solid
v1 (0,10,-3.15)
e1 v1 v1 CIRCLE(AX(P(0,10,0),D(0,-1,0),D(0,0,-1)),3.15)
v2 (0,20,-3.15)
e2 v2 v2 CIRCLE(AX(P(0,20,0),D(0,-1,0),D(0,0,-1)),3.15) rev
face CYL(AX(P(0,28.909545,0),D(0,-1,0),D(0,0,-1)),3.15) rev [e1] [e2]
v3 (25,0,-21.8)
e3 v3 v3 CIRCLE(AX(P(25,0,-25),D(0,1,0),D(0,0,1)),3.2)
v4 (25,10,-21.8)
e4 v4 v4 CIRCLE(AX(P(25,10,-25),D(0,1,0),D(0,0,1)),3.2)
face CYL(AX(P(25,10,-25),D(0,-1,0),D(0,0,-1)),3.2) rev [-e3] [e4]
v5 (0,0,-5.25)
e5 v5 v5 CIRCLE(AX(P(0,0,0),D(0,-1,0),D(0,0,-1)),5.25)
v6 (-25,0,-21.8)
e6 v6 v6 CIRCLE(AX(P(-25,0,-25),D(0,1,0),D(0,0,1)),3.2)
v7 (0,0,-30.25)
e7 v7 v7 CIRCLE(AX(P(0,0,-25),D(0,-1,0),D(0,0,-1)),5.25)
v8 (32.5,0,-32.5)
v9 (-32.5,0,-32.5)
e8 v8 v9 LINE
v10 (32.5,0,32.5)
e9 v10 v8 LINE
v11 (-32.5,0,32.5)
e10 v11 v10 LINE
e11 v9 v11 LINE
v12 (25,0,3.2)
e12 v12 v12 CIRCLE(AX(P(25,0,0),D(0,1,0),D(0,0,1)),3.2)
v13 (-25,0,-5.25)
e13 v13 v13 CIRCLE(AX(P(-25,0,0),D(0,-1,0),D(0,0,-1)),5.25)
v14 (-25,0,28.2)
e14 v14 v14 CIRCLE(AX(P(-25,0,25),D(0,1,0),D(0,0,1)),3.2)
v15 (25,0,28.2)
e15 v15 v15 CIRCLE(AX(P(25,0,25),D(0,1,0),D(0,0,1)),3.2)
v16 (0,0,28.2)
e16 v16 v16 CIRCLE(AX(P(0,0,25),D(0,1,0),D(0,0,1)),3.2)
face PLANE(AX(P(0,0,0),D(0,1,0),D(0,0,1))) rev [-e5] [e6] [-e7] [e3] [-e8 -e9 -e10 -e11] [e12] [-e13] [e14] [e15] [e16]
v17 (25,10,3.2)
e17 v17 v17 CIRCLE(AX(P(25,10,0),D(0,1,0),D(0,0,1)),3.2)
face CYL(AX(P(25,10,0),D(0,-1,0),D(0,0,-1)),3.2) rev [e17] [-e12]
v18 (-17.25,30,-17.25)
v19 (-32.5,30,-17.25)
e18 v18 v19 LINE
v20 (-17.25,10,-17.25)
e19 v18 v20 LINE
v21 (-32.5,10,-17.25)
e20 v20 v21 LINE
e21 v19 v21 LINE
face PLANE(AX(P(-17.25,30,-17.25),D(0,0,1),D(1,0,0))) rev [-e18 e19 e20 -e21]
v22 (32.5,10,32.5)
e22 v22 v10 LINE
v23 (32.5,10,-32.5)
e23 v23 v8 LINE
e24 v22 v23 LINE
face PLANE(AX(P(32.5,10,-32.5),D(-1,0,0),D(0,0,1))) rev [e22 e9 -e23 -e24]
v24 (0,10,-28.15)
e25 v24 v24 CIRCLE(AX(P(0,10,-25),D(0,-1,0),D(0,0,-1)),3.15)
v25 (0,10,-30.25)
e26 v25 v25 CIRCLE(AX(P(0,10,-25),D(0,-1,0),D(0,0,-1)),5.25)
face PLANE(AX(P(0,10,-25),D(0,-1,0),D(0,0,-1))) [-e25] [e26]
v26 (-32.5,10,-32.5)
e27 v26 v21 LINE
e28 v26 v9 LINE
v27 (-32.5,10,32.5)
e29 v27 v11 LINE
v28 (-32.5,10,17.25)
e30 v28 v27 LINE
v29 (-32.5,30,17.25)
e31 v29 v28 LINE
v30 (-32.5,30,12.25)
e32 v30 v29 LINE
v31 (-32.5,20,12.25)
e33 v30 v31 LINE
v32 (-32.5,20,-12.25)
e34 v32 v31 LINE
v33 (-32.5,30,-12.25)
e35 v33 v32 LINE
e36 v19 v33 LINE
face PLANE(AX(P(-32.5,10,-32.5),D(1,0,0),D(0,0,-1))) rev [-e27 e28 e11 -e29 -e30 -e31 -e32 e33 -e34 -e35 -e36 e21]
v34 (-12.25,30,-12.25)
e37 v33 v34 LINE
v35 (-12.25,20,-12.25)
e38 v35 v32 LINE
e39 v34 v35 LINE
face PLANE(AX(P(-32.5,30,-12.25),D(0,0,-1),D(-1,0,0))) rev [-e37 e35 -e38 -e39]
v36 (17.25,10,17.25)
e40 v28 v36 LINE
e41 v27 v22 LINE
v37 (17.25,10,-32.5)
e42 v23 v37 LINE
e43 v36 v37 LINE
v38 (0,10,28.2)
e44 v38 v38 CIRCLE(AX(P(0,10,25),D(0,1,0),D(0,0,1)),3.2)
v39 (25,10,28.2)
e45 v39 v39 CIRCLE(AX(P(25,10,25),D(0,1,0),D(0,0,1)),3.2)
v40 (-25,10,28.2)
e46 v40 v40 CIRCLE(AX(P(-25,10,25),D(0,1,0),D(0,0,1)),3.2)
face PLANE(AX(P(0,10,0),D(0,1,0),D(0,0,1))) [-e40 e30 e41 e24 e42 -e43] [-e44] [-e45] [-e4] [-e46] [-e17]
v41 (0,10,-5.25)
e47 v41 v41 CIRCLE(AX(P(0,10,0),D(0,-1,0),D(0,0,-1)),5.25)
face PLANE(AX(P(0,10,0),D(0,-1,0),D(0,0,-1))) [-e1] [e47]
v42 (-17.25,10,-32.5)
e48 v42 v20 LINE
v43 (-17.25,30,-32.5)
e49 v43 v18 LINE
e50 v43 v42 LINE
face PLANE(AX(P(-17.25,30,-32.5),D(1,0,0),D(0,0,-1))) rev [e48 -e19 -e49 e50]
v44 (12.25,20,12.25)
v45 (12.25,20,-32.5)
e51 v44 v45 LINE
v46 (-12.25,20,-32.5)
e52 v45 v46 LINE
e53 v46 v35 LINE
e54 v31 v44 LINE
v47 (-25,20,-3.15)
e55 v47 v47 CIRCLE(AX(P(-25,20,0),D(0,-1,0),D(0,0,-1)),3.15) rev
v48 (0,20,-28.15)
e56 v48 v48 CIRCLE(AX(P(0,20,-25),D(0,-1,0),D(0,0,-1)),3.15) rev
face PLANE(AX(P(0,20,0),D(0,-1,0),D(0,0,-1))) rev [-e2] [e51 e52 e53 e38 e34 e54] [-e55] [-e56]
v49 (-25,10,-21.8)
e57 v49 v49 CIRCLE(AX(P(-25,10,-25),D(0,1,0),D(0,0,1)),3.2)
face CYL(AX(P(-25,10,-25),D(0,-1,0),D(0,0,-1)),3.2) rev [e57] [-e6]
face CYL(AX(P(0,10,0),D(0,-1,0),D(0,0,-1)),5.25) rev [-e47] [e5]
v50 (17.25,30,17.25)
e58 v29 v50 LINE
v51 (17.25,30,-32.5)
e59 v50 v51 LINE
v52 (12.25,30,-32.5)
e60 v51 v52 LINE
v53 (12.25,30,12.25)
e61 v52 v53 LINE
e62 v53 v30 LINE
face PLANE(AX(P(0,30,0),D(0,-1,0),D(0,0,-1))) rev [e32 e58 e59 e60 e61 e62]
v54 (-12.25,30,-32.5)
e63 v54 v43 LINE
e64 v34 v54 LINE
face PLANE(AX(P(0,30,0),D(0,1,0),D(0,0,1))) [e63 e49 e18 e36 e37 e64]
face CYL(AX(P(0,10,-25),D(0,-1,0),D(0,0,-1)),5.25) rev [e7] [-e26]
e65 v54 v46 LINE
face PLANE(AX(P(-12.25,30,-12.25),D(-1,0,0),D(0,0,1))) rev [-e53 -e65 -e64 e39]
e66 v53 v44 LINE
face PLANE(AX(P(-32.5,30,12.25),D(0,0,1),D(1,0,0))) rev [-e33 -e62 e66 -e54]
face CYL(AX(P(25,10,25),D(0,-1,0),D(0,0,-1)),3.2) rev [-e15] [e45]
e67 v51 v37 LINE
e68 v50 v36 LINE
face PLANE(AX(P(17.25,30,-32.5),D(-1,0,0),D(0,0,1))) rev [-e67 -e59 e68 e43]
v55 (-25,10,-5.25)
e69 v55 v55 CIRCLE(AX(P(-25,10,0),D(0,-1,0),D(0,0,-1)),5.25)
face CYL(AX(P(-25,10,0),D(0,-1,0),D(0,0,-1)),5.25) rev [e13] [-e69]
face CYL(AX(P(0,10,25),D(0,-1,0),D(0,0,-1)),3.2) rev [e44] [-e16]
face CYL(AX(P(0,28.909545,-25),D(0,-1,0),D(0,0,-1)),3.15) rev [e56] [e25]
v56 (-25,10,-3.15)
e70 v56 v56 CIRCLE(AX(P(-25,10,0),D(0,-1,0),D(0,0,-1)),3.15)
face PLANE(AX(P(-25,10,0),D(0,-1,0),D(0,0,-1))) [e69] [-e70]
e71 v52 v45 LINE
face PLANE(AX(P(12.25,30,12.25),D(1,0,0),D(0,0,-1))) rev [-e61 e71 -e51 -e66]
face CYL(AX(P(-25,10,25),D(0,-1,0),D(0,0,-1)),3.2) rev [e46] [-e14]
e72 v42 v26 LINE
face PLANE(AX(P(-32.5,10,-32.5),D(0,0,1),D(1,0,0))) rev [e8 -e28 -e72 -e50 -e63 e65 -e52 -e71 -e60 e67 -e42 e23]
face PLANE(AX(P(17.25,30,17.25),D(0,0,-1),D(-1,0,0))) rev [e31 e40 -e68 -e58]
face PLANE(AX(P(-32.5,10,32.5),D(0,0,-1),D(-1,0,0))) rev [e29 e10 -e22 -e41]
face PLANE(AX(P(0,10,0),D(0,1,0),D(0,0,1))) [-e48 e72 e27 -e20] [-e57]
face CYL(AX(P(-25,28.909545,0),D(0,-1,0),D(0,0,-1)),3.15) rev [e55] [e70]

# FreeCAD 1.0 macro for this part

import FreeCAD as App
import Part
import Sketcher


def add_polygon(sketch, points):
    """Adds a closed chain of lines whose ends are joined by coincident constraints."""
    first, n = sketch.GeometryCount, len(points)
    for a, b in zip(points, points[1:] + points[:1]):
        sketch.addGeometry(Part.LineSegment(App.Vector(*a, 0), App.Vector(*b, 0)), False)
    for i in range(n):
        sketch.addConstraint(Sketcher.Constraint("Coincident", first + i, 2, first + (i + 1) % n, 1))

doc = App.newDocument("Part")
body = doc.addObject("PartDesign::Body", "Body")

# Sketch on XZ plane
sketch1 = body.newObject("Sketcher::SketchObject", "Sketch")
sketch1.AttachmentSupport = (doc.getObject("XZ_Plane"), [""])
sketch1.MapMode = "FlatFace"
add_polygon(sketch1, [(-32.5, -32.5), (-32.5, 32.5), (32.5, 32.5), (32.5, -32.5)])  # lines 0-3
sketch1.addGeometry(Part.Circle(App.Vector(-25, 25, 0), App.Vector(0, 0, 1), 3.2), False)  # 4
sketch1.addGeometry(Part.Circle(App.Vector(0, 25, 0), App.Vector(0, 0, 1), 3.2), False)  # 5
sketch1.addGeometry(Part.Circle(App.Vector(25, 25, 0), App.Vector(0, 0, 1), 3.2), False)  # 6
sketch1.addGeometry(Part.Circle(App.Vector(-25, -25, 0), App.Vector(0, 0, 1), 3.2), False)  # 7
sketch1.addGeometry(Part.Circle(App.Vector(25, 0, 0), App.Vector(0, 0, 1), 3.2), False)  # 8
sketch1.addGeometry(Part.Circle(App.Vector(25, -25, 0), App.Vector(0, 0, 1), 3.2), False)  # 9
sketch1.addConstraint([
    Sketcher.Constraint("Vertical", 0),
    Sketcher.Constraint("Horizontal", 1),
    Sketcher.Constraint("Vertical", 2),
    Sketcher.Constraint("Horizontal", 3),
    Sketcher.Constraint("Equal", 4, 5),
    Sketcher.Constraint("Equal", 5, 6),
    Sketcher.Constraint("Equal", 6, 7),
    Sketcher.Constraint("Equal", 7, 8),
    Sketcher.Constraint("Equal", 8, 9),
    Sketcher.Constraint("Symmetric", 6, 3, 7, 3, -1, 1),
    Sketcher.Constraint("Symmetric", 4, 3, 9, 3, -1, 1),
    Sketcher.Constraint("Symmetric", 0, 2, 2, 2, -1, 1),
    Sketcher.Constraint("Symmetric", 4, 3, 6, 3, -2),
    Sketcher.Constraint("PointOnObject", 5, 3, -2),
    Sketcher.Constraint("PointOnObject", 8, 3, -1),
    Sketcher.Constraint("Horizontal", 4, 3, 5, 3),
    Sketcher.Constraint("Vertical", 6, 3, 8, 3),
    Sketcher.Constraint("Equal", 3, 0),
    Sketcher.Constraint("Diameter", 4, 6.4),
    Sketcher.Constraint("DistanceX", 1, 1, 1, 2, 65.0),
    Sketcher.Constraint("DistanceX", 4, 3, -1, 1, 25.0),
    Sketcher.Constraint("DistanceY", -1, 1, 4, 3, 25.0),
])
pad1 = body.newObject("PartDesign::Pad", "Pad")
pad1.Profile = sketch1
pad1.Length = 10
pad1.Reversed = True

# Sketch on XZ plane
sketch2 = body.newObject("Sketcher::SketchObject", "Sketch001")
sketch2.AttachmentSupport = (doc.getObject("XZ_Plane"), [""])
sketch2.MapMode = "FlatFace"
sketch2.AttachmentOffset = App.Placement(App.Vector(0, 0, -10), App.Rotation())
add_polygon(sketch2, [(-32.5, 12.25), (12.25, 12.25), (12.25, -32.5), (-12.25, -32.5), (-12.25, -12.25), (-32.5, -12.25)])  # lines 0-5
sketch2.addConstraint([
    Sketcher.Constraint("Horizontal", 0),
    Sketcher.Constraint("Vertical", 1),
    Sketcher.Constraint("Horizontal", 2),
    Sketcher.Constraint("Vertical", 3),
    Sketcher.Constraint("Horizontal", 4),
    Sketcher.Constraint("Vertical", 5),
    Sketcher.Constraint("Symmetric", 0, 2, 3, 2, -1, 1),
    Sketcher.Constraint("Equal", 0, 1),
    Sketcher.Constraint("Equal", 4, 3),
    Sketcher.Constraint("DistanceX", 2, 2, 2, 1, 24.5),
    Sketcher.Constraint("DistanceX", 0, 1, 0, 2, 44.75),
])
pad2 = body.newObject("PartDesign::Pad", "Pad001")
pad2.Profile = sketch2
pad2.Length = 10
pad2.Reversed = True

# Sketch on XZ plane
sketch3 = body.newObject("Sketcher::SketchObject", "Sketch002")
sketch3.AttachmentSupport = (doc.getObject("XZ_Plane"), [""])
sketch3.MapMode = "FlatFace"
sketch3.addGeometry([
    Part.Circle(App.Vector(0, 0, 0), App.Vector(0, 0, 1), 5.25),
    Part.Circle(App.Vector(-25, 0, 0), App.Vector(0, 0, 1), 5.25),
    Part.Circle(App.Vector(0, -25, 0), App.Vector(0, 0, 1), 5.25),
], False)
sketch3.addConstraint([
    Sketcher.Constraint("Coincident", 0, 3, -1, 1),
    Sketcher.Constraint("Equal", 0, 1),
    Sketcher.Constraint("Equal", 1, 2),
    Sketcher.Constraint("PointOnObject", 1, 3, -1),
    Sketcher.Constraint("PointOnObject", 2, 3, -2),
    Sketcher.Constraint("Diameter", 0, 10.5),
    Sketcher.Constraint("DistanceX", 1, 3, -1, 1, 25.0),
    Sketcher.Constraint("DistanceY", 2, 3, -1, 1, 25.0),
])
pocket1 = body.newObject("PartDesign::Pocket", "Pocket")
pocket1.Profile = sketch3
pocket1.Length = 10

# Sketch on XZ plane
sketch4 = body.newObject("Sketcher::SketchObject", "Sketch003")
sketch4.AttachmentSupport = (doc.getObject("XZ_Plane"), [""])
sketch4.MapMode = "FlatFace"
sketch4.addGeometry([
    Part.Circle(App.Vector(0, 0, 0), App.Vector(0, 0, 1), 3.15),
    Part.Circle(App.Vector(0, -25, 0), App.Vector(0, 0, 1), 3.15),
    Part.Circle(App.Vector(-25, 0, 0), App.Vector(0, 0, 1), 3.15),
], False)
sketch4.addConstraint([
    Sketcher.Constraint("Coincident", 0, 3, -1, 1),
    Sketcher.Constraint("Equal", 0, 1),
    Sketcher.Constraint("Equal", 1, 2),
    Sketcher.Constraint("PointOnObject", 1, 3, -2),
    Sketcher.Constraint("PointOnObject", 2, 3, -1),
    Sketcher.Constraint("Diameter", 0, 6.3),
    Sketcher.Constraint("DistanceY", 1, 3, -1, 1, 25.0),
    Sketcher.Constraint("DistanceX", 2, 3, -1, 1, 25.0),
])
pocket2 = body.newObject("PartDesign::Pocket", "Pocket001")
pocket2.Profile = sketch4
pocket2.Length = 20

# Sketch on XZ plane
sketch5 = body.newObject("Sketcher::SketchObject", "Sketch004")
sketch5.AttachmentSupport = (doc.getObject("XZ_Plane"), [""])
sketch5.MapMode = "FlatFace"
sketch5.AttachmentOffset = App.Placement(App.Vector(0, 0, -10), App.Rotation())
add_polygon(sketch5, [(-12.25, -32.5), (-17.25, -32.5), (-17.25, -17.25), (-32.5, -17.25), (-32.5, -12.25), (-12.25, -12.25)])  # lines 0-5
add_polygon(sketch5, [(17.25, -32.5), (12.25, -32.5), (12.25, 12.25), (-32.5, 12.25), (-32.5, 17.25), (17.25, 17.25)])  # lines 6-11
sketch5.addConstraint([
    Sketcher.Constraint("Horizontal", 0),
    Sketcher.Constraint("Vertical", 1),
    Sketcher.Constraint("Horizontal", 2),
    Sketcher.Constraint("Vertical", 3),
    Sketcher.Constraint("Horizontal", 4),
    Sketcher.Constraint("Vertical", 5),
    Sketcher.Constraint("Horizontal", 6),
    Sketcher.Constraint("Vertical", 7),
    Sketcher.Constraint("Horizontal", 8),
    Sketcher.Constraint("Vertical", 9),
    Sketcher.Constraint("Horizontal", 10),
    Sketcher.Constraint("Vertical", 11),
    Sketcher.Constraint("Symmetric", 4, 2, 7, 2, -1, 1),
    Sketcher.Constraint("Symmetric", 1, 2, 10, 2, -1, 1),
    Sketcher.Constraint("Horizontal", 5, 2, 6, 2),
    Sketcher.Constraint("Vertical", 3, 2, 8, 2),
    Sketcher.Constraint("Equal", 2, 1),
    Sketcher.Constraint("Equal", 6, 3),
    Sketcher.Constraint("Equal", 8, 7),
    Sketcher.Constraint("DistanceX", 0, 2, 0, 1, 5.0),
    Sketcher.Constraint("DistanceX", 2, 2, 2, 1, 15.25),
    Sketcher.Constraint("DistanceX", 8, 2, 8, 1, 44.75),
])
pad3 = body.newObject("PartDesign::Pad", "Pad002")
pad3.Profile = sketch5
pad3.Length = 20
pad3.Reversed = True

doc.recompute()
